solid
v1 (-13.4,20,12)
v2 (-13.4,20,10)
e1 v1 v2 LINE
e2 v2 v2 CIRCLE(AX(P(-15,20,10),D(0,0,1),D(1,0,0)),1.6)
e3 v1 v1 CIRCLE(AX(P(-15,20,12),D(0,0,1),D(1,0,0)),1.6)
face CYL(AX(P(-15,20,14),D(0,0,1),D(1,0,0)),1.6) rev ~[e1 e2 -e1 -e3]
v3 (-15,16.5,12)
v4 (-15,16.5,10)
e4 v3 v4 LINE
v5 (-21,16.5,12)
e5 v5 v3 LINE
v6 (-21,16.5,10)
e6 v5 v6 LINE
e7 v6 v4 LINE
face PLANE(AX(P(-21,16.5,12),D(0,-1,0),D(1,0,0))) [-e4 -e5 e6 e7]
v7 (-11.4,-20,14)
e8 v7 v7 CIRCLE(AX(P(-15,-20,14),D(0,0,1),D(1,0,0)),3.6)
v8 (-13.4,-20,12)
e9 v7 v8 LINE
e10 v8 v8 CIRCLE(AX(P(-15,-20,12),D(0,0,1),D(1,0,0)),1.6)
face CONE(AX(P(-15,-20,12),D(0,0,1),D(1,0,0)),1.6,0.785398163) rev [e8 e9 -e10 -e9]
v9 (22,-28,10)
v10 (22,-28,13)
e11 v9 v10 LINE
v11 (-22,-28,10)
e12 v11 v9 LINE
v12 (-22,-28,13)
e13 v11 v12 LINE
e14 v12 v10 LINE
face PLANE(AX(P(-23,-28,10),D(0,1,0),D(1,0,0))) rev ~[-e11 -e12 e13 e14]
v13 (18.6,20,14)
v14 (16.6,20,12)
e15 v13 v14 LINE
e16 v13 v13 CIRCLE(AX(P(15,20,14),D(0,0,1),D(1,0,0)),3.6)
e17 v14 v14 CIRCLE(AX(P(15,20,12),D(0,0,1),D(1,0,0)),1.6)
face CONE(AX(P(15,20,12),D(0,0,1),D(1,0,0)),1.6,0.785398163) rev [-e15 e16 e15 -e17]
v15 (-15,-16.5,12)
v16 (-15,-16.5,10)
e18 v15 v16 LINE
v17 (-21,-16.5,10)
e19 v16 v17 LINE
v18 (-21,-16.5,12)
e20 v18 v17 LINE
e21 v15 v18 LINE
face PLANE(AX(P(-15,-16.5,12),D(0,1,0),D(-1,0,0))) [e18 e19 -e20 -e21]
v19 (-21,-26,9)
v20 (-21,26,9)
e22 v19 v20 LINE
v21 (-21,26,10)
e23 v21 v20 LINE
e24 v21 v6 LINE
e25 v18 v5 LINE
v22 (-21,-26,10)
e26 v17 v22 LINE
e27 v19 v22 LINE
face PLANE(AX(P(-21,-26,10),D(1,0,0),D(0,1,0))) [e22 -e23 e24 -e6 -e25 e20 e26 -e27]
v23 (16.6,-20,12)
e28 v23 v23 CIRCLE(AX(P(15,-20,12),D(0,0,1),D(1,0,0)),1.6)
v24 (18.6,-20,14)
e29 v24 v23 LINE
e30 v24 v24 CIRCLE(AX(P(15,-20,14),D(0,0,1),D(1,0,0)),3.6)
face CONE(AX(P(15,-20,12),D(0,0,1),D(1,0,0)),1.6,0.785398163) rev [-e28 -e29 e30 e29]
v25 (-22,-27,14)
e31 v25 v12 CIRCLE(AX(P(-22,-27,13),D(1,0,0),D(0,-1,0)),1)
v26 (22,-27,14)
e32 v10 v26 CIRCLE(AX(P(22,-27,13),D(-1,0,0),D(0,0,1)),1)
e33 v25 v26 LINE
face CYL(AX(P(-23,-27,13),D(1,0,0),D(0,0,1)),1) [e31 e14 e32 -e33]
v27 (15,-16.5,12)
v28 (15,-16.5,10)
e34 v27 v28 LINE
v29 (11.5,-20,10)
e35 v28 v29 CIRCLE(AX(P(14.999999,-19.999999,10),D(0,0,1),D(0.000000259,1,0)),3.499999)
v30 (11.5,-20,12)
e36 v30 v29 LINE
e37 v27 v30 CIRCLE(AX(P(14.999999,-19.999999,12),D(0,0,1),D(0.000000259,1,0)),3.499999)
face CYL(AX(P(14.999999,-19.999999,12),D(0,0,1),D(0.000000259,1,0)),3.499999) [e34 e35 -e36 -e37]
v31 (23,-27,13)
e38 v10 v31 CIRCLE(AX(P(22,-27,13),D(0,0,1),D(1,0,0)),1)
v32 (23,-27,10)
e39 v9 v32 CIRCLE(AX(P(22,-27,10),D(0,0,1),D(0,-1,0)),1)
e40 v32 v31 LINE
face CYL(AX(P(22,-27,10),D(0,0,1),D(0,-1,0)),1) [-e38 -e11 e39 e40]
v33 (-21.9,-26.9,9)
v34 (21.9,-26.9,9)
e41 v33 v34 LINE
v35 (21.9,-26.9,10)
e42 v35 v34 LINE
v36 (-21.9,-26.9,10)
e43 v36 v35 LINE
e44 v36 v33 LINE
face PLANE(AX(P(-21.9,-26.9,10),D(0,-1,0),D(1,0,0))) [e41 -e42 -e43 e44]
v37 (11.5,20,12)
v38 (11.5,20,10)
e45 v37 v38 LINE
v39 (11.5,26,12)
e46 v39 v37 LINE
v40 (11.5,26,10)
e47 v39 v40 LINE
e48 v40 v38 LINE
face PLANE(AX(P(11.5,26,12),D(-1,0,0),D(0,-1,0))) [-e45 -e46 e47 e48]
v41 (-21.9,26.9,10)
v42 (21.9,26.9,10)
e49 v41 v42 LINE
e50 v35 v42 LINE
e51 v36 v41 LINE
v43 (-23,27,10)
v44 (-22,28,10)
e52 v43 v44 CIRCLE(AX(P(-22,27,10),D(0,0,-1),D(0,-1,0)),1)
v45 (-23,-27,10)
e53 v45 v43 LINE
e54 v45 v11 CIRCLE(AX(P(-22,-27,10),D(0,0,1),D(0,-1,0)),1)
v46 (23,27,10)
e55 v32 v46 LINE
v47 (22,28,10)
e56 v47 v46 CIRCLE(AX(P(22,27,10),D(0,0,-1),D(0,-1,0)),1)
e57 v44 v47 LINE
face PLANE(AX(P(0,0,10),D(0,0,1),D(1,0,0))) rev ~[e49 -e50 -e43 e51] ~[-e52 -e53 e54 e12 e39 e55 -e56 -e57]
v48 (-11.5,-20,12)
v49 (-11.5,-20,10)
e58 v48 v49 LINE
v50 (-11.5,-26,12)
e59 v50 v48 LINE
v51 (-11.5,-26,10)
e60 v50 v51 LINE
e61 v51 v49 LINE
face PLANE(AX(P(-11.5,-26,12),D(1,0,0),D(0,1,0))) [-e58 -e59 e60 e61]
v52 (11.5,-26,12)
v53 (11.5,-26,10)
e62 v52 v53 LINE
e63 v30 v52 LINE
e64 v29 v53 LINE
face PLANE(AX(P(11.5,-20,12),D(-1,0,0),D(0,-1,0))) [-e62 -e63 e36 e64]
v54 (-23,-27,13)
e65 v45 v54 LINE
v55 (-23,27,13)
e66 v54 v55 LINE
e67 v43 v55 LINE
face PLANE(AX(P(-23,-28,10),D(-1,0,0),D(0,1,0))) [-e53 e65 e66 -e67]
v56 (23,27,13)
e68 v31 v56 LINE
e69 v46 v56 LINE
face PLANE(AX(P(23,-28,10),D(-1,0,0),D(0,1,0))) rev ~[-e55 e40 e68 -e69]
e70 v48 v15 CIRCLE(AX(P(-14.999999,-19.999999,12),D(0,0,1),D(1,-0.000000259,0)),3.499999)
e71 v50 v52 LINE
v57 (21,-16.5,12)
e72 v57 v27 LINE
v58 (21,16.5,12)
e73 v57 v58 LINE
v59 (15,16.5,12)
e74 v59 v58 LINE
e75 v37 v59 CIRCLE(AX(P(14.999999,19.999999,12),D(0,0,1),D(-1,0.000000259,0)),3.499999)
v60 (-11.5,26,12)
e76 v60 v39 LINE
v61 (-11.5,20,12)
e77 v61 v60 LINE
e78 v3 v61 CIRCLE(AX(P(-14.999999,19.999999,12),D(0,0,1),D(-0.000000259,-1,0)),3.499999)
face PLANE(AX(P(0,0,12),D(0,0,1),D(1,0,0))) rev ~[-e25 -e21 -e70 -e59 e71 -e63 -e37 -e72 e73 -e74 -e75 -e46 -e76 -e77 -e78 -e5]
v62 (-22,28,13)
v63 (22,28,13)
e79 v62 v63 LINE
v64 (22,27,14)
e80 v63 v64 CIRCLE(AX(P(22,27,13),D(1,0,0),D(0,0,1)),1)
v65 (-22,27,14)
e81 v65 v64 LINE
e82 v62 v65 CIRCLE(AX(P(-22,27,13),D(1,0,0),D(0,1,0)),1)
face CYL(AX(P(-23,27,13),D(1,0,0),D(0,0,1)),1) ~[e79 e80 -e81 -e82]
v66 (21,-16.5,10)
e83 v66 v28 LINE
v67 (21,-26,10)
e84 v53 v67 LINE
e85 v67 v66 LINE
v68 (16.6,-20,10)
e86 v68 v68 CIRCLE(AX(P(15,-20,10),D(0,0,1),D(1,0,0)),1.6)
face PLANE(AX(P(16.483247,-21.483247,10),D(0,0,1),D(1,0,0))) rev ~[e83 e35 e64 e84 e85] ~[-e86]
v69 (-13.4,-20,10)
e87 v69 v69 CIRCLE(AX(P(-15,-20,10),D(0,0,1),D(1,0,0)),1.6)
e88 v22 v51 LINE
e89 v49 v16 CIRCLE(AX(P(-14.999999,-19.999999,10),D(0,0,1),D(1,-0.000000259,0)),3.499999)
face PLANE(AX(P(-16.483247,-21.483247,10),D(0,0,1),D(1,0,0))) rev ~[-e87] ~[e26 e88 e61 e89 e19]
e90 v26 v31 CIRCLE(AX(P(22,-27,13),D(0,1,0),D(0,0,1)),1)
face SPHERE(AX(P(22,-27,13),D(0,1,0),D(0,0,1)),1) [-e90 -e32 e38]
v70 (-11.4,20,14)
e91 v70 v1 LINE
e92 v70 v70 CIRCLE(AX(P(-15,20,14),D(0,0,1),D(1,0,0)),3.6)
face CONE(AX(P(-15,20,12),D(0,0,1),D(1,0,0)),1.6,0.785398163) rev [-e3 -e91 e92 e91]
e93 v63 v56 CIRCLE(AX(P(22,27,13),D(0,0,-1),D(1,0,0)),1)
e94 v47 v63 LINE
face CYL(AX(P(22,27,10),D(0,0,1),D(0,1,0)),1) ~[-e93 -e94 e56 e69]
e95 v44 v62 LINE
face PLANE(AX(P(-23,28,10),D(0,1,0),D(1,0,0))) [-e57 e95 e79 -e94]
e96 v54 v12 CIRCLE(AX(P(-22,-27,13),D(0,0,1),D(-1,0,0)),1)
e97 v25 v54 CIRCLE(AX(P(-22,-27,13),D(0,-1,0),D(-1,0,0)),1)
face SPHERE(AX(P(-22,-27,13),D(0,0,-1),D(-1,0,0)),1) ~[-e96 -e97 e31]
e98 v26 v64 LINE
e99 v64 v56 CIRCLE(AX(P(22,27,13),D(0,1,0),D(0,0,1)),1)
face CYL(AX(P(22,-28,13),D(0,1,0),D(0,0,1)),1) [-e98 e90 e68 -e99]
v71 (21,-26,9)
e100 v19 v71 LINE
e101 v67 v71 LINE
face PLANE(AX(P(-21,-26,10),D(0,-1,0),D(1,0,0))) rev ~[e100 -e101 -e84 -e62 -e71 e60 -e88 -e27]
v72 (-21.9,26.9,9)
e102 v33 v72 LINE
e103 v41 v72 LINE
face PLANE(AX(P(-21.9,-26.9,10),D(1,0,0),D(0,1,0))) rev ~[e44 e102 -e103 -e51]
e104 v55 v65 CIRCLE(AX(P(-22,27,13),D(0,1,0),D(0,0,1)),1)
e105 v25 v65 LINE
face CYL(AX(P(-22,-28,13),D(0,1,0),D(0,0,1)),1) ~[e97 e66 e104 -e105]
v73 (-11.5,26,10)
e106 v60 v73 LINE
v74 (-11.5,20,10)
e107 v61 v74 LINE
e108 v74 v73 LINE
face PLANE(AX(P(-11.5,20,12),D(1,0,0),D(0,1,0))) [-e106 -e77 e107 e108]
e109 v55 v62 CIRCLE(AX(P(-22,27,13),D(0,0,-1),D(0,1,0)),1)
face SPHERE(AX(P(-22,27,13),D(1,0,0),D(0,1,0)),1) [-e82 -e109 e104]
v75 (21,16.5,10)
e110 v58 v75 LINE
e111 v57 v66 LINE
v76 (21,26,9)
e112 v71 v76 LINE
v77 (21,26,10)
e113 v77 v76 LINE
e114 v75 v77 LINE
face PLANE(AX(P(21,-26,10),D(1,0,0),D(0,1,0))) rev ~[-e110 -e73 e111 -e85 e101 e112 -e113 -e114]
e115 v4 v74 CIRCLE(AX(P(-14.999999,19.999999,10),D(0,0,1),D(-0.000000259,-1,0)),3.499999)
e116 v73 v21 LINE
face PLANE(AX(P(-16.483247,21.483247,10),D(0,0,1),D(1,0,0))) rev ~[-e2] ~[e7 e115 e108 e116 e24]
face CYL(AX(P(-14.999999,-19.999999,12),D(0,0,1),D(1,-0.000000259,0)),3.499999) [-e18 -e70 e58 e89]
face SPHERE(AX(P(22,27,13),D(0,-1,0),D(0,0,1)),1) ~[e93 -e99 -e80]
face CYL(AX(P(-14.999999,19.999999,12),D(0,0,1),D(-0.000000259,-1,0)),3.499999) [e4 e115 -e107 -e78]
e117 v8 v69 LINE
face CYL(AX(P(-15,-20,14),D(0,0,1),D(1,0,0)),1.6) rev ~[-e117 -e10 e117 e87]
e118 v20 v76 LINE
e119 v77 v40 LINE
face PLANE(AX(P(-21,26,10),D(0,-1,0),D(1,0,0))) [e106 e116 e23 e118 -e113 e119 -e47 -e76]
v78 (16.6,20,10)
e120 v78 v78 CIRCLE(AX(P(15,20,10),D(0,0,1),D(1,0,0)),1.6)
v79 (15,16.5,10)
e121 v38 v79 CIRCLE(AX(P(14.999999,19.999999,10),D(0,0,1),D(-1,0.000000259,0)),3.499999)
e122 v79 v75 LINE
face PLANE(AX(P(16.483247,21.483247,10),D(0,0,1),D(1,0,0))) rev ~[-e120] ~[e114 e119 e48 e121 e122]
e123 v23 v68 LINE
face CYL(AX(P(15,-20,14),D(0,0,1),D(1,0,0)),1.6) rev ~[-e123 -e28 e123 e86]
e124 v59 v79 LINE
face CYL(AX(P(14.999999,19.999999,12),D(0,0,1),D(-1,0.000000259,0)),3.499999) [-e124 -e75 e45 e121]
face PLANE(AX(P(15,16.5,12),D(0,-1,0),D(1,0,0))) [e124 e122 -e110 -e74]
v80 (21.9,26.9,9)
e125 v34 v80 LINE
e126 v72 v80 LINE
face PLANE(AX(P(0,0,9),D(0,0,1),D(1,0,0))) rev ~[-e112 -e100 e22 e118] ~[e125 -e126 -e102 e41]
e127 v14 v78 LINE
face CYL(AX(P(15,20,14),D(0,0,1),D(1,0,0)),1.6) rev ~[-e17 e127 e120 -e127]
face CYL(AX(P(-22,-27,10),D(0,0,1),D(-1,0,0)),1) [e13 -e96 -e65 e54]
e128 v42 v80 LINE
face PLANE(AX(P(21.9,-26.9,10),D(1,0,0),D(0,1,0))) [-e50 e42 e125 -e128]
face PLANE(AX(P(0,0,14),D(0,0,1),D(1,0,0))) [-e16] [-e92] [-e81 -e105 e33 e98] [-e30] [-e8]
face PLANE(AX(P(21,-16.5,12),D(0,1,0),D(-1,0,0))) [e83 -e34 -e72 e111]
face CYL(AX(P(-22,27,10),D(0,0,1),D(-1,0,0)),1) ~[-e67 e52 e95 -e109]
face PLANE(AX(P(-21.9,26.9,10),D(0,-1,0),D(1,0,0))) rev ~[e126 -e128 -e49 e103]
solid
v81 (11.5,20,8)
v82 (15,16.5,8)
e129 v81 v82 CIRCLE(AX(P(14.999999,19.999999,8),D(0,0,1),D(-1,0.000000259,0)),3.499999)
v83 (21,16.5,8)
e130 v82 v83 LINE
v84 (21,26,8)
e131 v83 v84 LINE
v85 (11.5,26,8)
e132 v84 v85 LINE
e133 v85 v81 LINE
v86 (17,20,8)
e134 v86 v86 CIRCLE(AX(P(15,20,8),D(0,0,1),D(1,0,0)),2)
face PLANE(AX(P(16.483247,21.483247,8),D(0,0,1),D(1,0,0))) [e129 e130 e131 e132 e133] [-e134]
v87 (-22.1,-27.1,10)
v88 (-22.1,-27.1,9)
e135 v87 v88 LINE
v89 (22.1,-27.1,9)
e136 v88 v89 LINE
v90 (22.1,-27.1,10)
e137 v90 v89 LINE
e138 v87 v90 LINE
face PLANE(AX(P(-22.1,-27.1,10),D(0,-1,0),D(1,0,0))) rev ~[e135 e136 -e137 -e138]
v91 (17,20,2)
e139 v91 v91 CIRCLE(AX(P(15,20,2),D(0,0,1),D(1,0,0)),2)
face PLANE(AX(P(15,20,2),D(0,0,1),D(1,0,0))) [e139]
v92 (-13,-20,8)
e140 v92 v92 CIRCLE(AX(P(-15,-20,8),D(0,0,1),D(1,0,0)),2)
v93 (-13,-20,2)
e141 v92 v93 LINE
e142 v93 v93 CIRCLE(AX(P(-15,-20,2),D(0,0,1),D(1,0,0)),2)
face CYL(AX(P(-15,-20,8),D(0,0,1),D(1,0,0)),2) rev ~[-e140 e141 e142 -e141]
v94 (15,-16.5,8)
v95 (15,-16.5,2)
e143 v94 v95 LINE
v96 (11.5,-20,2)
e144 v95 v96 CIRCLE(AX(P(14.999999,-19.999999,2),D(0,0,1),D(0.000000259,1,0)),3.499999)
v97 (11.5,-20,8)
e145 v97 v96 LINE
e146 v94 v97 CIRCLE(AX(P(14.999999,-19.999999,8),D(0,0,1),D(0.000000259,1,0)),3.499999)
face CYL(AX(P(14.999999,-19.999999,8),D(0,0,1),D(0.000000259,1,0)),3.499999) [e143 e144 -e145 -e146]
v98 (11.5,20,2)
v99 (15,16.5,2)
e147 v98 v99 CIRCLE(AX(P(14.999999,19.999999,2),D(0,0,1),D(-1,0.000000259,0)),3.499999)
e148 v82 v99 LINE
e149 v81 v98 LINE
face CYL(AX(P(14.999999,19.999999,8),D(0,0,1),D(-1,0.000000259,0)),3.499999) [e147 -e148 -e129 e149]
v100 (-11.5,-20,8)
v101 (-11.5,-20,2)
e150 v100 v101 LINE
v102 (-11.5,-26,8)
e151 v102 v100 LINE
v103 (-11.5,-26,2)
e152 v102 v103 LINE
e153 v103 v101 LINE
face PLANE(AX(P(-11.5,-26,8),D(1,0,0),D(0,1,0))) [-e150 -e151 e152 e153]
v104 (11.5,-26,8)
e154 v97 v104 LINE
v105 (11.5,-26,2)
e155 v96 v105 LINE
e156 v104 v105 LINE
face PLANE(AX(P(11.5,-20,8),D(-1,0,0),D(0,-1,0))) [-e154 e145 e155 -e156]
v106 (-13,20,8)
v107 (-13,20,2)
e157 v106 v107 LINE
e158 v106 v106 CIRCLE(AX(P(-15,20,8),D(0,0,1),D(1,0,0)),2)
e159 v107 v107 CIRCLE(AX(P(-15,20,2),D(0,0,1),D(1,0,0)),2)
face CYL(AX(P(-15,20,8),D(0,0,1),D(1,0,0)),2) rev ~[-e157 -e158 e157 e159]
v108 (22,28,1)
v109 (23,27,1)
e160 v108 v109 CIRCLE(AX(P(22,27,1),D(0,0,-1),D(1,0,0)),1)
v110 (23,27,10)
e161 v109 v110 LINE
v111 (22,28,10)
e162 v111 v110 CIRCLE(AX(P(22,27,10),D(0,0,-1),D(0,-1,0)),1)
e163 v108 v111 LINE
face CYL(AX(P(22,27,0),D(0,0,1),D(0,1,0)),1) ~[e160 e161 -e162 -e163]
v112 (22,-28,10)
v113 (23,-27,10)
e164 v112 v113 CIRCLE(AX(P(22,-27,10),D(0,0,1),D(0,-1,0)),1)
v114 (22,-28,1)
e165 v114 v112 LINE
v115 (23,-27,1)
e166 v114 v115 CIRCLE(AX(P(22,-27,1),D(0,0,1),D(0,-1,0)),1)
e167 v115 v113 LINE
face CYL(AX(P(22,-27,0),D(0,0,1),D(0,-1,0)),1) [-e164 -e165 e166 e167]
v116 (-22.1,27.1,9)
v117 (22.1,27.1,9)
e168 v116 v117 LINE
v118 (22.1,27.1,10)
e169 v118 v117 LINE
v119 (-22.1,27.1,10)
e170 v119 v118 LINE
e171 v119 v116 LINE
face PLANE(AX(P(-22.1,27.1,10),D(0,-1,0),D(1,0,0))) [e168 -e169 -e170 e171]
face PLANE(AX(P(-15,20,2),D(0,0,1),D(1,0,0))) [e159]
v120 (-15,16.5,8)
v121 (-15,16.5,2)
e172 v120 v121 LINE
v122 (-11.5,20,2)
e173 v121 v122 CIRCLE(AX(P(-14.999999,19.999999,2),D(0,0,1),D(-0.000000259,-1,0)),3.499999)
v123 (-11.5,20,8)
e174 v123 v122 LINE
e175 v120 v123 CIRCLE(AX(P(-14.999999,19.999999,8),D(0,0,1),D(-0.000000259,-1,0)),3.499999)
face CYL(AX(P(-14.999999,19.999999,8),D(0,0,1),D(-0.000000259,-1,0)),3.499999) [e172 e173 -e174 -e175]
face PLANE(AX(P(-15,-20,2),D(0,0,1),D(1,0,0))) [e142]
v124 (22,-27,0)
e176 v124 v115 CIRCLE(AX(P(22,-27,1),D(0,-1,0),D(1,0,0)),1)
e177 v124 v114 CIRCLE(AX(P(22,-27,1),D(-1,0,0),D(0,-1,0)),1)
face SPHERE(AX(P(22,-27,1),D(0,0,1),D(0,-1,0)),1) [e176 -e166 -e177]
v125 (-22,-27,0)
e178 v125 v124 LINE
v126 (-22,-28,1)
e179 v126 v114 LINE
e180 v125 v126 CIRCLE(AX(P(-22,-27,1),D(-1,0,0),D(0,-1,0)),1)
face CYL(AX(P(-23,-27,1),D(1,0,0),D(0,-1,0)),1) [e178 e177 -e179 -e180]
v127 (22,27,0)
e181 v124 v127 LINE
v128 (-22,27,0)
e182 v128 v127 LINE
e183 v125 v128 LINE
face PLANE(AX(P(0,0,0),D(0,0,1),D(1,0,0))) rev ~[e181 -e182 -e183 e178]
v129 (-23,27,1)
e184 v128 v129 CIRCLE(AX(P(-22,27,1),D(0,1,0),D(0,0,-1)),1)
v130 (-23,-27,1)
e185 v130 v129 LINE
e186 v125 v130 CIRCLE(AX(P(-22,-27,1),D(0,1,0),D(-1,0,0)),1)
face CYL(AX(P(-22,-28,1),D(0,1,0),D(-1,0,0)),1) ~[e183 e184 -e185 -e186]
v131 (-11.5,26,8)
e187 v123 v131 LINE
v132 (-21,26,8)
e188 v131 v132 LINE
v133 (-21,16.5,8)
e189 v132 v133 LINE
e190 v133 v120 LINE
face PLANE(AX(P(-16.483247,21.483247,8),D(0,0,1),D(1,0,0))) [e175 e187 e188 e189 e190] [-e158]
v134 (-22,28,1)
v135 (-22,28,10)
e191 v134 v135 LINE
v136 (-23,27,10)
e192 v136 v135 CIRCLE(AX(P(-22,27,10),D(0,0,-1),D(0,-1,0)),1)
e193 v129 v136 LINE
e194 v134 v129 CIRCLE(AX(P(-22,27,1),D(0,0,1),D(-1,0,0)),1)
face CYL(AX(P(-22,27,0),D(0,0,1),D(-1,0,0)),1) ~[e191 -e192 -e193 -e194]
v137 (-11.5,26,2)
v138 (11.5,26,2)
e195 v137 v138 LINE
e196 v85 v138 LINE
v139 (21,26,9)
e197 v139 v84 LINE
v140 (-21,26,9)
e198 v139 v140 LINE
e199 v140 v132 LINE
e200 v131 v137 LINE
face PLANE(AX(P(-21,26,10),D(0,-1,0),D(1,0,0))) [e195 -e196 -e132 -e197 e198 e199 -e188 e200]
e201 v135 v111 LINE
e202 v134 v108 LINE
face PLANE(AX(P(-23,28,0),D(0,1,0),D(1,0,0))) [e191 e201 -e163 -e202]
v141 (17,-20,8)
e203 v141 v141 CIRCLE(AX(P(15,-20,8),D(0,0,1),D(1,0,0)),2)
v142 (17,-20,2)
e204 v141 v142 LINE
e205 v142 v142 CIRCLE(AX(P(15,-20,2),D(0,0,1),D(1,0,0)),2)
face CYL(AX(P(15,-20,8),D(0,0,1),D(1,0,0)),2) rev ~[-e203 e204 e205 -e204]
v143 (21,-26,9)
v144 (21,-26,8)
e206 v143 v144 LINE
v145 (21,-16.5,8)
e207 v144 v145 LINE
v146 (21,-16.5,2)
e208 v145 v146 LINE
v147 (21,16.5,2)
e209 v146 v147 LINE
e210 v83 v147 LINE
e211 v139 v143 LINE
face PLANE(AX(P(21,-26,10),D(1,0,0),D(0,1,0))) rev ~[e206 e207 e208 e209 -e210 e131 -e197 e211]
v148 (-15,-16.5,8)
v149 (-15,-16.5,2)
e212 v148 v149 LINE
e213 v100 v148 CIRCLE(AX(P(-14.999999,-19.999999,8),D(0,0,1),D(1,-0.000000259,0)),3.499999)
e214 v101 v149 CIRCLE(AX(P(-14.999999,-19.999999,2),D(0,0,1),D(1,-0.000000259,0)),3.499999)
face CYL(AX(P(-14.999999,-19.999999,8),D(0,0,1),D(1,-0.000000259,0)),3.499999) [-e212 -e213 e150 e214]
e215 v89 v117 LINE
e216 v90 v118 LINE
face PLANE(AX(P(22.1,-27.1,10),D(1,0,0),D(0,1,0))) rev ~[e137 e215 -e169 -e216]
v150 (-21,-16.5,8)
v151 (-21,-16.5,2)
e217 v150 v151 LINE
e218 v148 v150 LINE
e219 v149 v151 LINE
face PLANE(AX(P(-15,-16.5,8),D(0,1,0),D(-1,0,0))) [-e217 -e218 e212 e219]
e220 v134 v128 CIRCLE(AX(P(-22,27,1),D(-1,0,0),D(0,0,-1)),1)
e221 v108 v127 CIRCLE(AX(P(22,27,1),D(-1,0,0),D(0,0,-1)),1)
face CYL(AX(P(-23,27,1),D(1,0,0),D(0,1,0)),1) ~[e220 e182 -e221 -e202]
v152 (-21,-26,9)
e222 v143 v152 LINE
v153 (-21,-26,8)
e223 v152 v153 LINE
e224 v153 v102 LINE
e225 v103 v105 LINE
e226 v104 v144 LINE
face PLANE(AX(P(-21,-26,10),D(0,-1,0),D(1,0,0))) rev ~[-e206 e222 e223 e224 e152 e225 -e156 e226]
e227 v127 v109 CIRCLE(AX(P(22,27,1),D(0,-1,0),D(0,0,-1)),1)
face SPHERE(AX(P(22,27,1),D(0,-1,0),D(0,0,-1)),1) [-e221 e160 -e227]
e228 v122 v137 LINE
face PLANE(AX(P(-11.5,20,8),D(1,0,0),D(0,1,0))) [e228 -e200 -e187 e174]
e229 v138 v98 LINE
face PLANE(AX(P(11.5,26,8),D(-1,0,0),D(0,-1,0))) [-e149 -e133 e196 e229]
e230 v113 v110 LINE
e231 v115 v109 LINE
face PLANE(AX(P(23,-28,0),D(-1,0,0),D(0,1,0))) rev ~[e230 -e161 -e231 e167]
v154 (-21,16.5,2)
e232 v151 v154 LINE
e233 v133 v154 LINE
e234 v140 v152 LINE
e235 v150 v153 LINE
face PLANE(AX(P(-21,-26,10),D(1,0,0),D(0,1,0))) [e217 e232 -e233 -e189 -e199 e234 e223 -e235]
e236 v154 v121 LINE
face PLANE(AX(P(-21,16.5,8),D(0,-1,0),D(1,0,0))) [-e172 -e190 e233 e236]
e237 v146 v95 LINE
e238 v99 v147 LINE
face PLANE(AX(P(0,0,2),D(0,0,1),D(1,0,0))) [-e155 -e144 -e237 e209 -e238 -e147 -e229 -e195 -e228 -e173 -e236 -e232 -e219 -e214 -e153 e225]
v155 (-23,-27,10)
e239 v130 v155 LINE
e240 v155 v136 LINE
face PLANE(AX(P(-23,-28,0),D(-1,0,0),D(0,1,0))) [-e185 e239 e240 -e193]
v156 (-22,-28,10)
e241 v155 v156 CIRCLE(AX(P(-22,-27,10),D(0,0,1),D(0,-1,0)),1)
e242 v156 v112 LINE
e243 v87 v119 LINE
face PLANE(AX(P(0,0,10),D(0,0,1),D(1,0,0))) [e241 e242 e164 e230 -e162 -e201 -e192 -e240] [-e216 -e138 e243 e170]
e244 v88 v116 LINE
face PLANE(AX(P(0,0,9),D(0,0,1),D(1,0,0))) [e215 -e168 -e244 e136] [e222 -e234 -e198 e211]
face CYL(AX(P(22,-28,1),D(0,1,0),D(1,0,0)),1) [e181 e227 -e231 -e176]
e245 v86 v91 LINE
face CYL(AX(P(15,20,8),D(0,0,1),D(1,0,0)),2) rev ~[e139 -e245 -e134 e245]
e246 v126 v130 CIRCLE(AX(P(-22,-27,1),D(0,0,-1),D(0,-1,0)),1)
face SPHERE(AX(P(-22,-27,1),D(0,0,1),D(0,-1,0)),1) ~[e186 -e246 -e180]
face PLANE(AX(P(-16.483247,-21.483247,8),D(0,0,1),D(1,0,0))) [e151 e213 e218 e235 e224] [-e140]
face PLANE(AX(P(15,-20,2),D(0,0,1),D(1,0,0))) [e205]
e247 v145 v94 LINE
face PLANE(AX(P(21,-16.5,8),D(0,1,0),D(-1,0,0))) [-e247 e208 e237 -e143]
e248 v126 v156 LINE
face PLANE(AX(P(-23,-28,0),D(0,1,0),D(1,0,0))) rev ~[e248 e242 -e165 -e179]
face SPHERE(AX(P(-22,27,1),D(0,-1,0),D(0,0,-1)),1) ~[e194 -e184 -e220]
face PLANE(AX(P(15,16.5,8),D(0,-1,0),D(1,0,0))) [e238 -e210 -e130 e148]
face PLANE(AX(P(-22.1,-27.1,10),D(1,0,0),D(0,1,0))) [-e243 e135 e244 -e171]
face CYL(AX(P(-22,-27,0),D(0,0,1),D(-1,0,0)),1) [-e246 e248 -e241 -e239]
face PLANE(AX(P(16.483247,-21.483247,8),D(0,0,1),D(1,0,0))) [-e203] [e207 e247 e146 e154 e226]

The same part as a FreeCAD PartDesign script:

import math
import FreeCAD as App
import Part
import Sketcher
Q = App.Units.Quantity


def edges_at(feature, points):
    """Names of the edges that pass closest to the given points."""
    edges = feature.Shape.Edges
    near = lambda p: min(range(len(edges)), key=lambda i: edges[i].distToShape(Part.Vertex(*p))[0])
    return sorted({f"Edge{near(p) + 1}" for p in points})

doc = App.newDocument("Part")
params = doc.addObject("Spreadsheet::Sheet", "Params")
for row, (alias, value) in enumerate([
    ("sketch1_width", "46 mm"),
    ("sketch1_height", "56 mm"),
    ("pad1_length", "10 mm"),
    ("sketch2_width", "42 mm"),
    ("sketch2_height", "52 mm"),
    ("pocket1_length", "8 mm"),
    ("sketch3_width", "44.2 mm"),
    ("sketch3_height", "54.2 mm"),
    ("pocket2_length", "1 mm"),
    ("sketch4_radius", "3.499999 mm"),
    ("sketch4_width", "6 mm"),
    ("pad2_length", "6 mm"),
    ("sketch5_diameter", "4 mm"),
    ("pocket3_length", "6 mm"),
    ("fillet_radius", "1 mm"),
    ("sketch6_width", "46 mm"),
    ("sketch6_height", "56 mm"),
    ("pad3_length", "4 mm"),
    ("sketch7_width", "42 mm"),
    ("sketch7_height", "52 mm"),
    ("pocket4_length", "2 mm"),
    ("sketch8_width", "43.8 mm"),
    ("sketch8_height", "53.8 mm"),
    ("pad4_length", "1 mm"),
    ("sketch9_width", "42 mm"),
    ("sketch9_height", "52 mm"),
    ("pocket5_length", "1 mm"),
    ("sketch10_radius", "3.499999 mm"),
    ("sketch10_width", "6 mm"),
    ("pad5_length", "2 mm"),
    ("sketch11_diameter", "3.2 mm"),
    ("pocket6_length", "4 mm"),
    ("fillet2_radius", "1 mm"),
    ("chamfer_size", "2 mm"),
], start=1):
    params.set(f"A{row}", alias)
    params.set(f"B{row}", "=" + value)
    params.setAlias(f"B{row}", alias)

body = doc.addObject("PartDesign::Body", "Body")

# Sketch on XY plane
sketch1 = doc.addObject("Sketcher::SketchObject", "Sketch")
body.addObject(sketch1)
sketch1.AttachmentSupport = (doc.XY_Plane, [""])
sketch1.MapMode = "FlatFace"
sketch1.addGeometry(Part.LineSegment(App.Vector(-23, 28, 0), App.Vector(-23, -28, 0)), False)
sketch1.addGeometry(Part.LineSegment(App.Vector(-23, -28, 0), App.Vector(23, -28, 0)), False)
sketch1.addGeometry(Part.LineSegment(App.Vector(23, -28, 0), App.Vector(23, 28, 0)), False)
sketch1.addGeometry(Part.LineSegment(App.Vector(23, 28, 0), App.Vector(-23, 28, 0)), False)
sketch1.addConstraint(Sketcher.Constraint("Coincident", 0, 2, 1, 1))
sketch1.addConstraint(Sketcher.Constraint("Coincident", 1, 2, 2, 1))
sketch1.addConstraint(Sketcher.Constraint("Coincident", 2, 2, 3, 1))
sketch1.addConstraint(Sketcher.Constraint("Coincident", 3, 2, 0, 1))
sketch1.addConstraint(Sketcher.Constraint("Vertical", 0))
sketch1.addConstraint(Sketcher.Constraint("Horizontal", 1))
sketch1.addConstraint(Sketcher.Constraint("Vertical", 2))
sketch1.addConstraint(Sketcher.Constraint("Horizontal", 3))
sketch1.addConstraint(Sketcher.Constraint("Symmetric", 0, 2, 2, 2, -1, 1))
sketch1.addConstraint(Sketcher.Constraint("DistanceX", 1, 1, 1, 2, Q("46 mm")))
sketch1.addConstraint(Sketcher.Constraint("DistanceY", 0, 2, 0, 1, Q("56 mm")))
sketch1.setExpression("Constraints[9]", "Params.sketch1_width")
sketch1.setExpression("Constraints[10]", "Params.sketch1_height")
pad1 = doc.addObject("PartDesign::Pad", "Pad")
body.addObject(pad1)
pad1.Profile = sketch1
pad1.setExpression("Length", "Params.pad1_length")

# Sketch on XY plane
sketch2 = doc.addObject("Sketcher::SketchObject", "Sketch001")
body.addObject(sketch2)
sketch2.AttachmentSupport = (doc.XY_Plane, [""])
sketch2.MapMode = "FlatFace"
sketch2.AttachmentOffset = App.Placement(App.Vector(0, 0, 10), App.Rotation())
sketch2.addGeometry(Part.LineSegment(App.Vector(-21, 26, 0), App.Vector(-21, -26, 0)), False)
sketch2.addGeometry(Part.LineSegment(App.Vector(-21, -26, 0), App.Vector(21, -26, 0)), False)
sketch2.addGeometry(Part.LineSegment(App.Vector(21, -26, 0), App.Vector(21, 26, 0)), False)
sketch2.addGeometry(Part.LineSegment(App.Vector(21, 26, 0), App.Vector(-21, 26, 0)), False)
sketch2.addConstraint(Sketcher.Constraint("Coincident", 0, 2, 1, 1))
sketch2.addConstraint(Sketcher.Constraint("Coincident", 1, 2, 2, 1))
sketch2.addConstraint(Sketcher.Constraint("Coincident", 2, 2, 3, 1))
sketch2.addConstraint(Sketcher.Constraint("Coincident", 3, 2, 0, 1))
sketch2.addConstraint(Sketcher.Constraint("Vertical", 0))
sketch2.addConstraint(Sketcher.Constraint("Horizontal", 1))
sketch2.addConstraint(Sketcher.Constraint("Vertical", 2))
sketch2.addConstraint(Sketcher.Constraint("Horizontal", 3))
sketch2.addConstraint(Sketcher.Constraint("Symmetric", 0, 2, 2, 2, -1, 1))
sketch2.addConstraint(Sketcher.Constraint("DistanceX", 1, 1, 1, 2, Q("42 mm")))
sketch2.addConstraint(Sketcher.Constraint("DistanceY", 0, 2, 0, 1, Q("52 mm")))
sketch2.setExpression("Constraints[9]", "Params.sketch2_width")
sketch2.setExpression("Constraints[10]", "Params.sketch2_height")
pocket1 = doc.addObject("PartDesign::Pocket", "Pocket")
body.addObject(pocket1)
pocket1.Profile = sketch2
pocket1.setExpression("Length", "Params.pocket1_length")

# Sketch on XY plane
sketch3 = doc.addObject("Sketcher::SketchObject", "Sketch002")
body.addObject(sketch3)
sketch3.AttachmentSupport = (doc.XY_Plane, [""])
sketch3.MapMode = "FlatFace"
sketch3.AttachmentOffset = App.Placement(App.Vector(0, 0, 10), App.Rotation())
sketch3.addGeometry(Part.LineSegment(App.Vector(-22, 27, 0), App.Vector(-22, -27, 0)), False)
sketch3.addGeometry(Part.LineSegment(App.Vector(-22, -27, 0), App.Vector(22, -27, 0)), False)
sketch3.addGeometry(Part.LineSegment(App.Vector(22, -27, 0), App.Vector(22, 27, 0)), False)
sketch3.addGeometry(Part.LineSegment(App.Vector(22, 27, 0), App.Vector(-22, 27, 0)), False)
sketch3.addConstraint(Sketcher.Constraint("Coincident", 0, 2, 1, 1))
sketch3.addConstraint(Sketcher.Constraint("Coincident", 1, 2, 2, 1))
sketch3.addConstraint(Sketcher.Constraint("Coincident", 2, 2, 3, 1))
sketch3.addConstraint(Sketcher.Constraint("Coincident", 3, 2, 0, 1))
sketch3.addConstraint(Sketcher.Constraint("Vertical", 0))
sketch3.addConstraint(Sketcher.Constraint("Horizontal", 1))
sketch3.addConstraint(Sketcher.Constraint("Vertical", 2))
sketch3.addConstraint(Sketcher.Constraint("Horizontal", 3))
sketch3.addConstraint(Sketcher.Constraint("Symmetric", 0, 2, 2, 2, -1, 1))
sketch3.addConstraint(Sketcher.Constraint("DistanceX", 1, 1, 1, 2, Q("44.2 mm")))
sketch3.addConstraint(Sketcher.Constraint("DistanceY", 0, 2, 0, 1, Q("54.2 mm")))
sketch3.setExpression("Constraints[9]", "Params.sketch3_width")
sketch3.setExpression("Constraints[10]", "Params.sketch3_height")
pocket2 = doc.addObject("PartDesign::Pocket", "Pocket001")
body.addObject(pocket2)
pocket2.Profile = sketch3
pocket2.setExpression("Length", "Params.pocket2_length")

# Sketch on XY plane
sketch4 = doc.addObject("Sketcher::SketchObject", "Sketch003")
body.addObject(sketch4)
sketch4.AttachmentSupport = (doc.XY_Plane, [""])
sketch4.MapMode = "FlatFace"
sketch4.AttachmentOffset = App.Placement(App.Vector(0, 0, 8), App.Rotation())
sketch4.addGeometry(Part.ArcOfCircle(Part.Circle(App.Vector(-15, -20, 0), App.Vector(0, 0, 1), 3.5), math.radians(0), math.radians(90)), False)
sketch4.addGeometry(Part.LineSegment(App.Vector(-15, -16.5, 0), App.Vector(-21, -16.5, 0)), False)
sketch4.addGeometry(Part.LineSegment(App.Vector(-21, -16.5, 0), App.Vector(-21, -26, 0)), False)
sketch4.addGeometry(Part.LineSegment(App.Vector(-21, -26, 0), App.Vector(-11.5, -26, 0)), False)
sketch4.addGeometry(Part.LineSegment(App.Vector(-11.5, -26, 0), App.Vector(-11.5, -20, 0)), False)
sketch4.addGeometry(Part.ArcOfCircle(Part.Circle(App.Vector(15, -20, 0), App.Vector(0, 0, 1), 3.5), math.radians(90), math.radians(180)), False)
sketch4.addGeometry(Part.LineSegment(App.Vector(11.5, -20, 0), App.Vector(11.5, -26, 0)), False)
sketch4.addGeometry(Part.LineSegment(App.Vector(11.5, -26, 0), App.Vector(21, -26, 0)), False)
sketch4.addGeometry(Part.LineSegment(App.Vector(21, -26, 0), App.Vector(21, -16.5, 0)), False)
sketch4.addGeometry(Part.LineSegment(App.Vector(21, -16.5, 0), App.Vector(15, -16.5, 0)), False)
sketch4.addGeometry(Part.ArcOfCircle(Part.Circle(App.Vector(15, 20, 0), App.Vector(0, 0, 1), 3.5), math.radians(180), math.radians(270)), False)
sketch4.addGeometry(Part.LineSegment(App.Vector(15, 16.5, 0), App.Vector(21, 16.5, 0)), False)
sketch4.addGeometry(Part.LineSegment(App.Vector(21, 16.5, 0), App.Vector(21, 26, 0)), False)
sketch4.addGeometry(Part.LineSegment(App.Vector(21, 26, 0), App.Vector(11.5, 26, 0)), False)
sketch4.addGeometry(Part.LineSegment(App.Vector(11.5, 26, 0), App.Vector(11.5, 20, 0)), False)
sketch4.addGeometry(Part.ArcOfCircle(Part.Circle(App.Vector(-15, 20, 0), App.Vector(0, 0, 1), 3.5), math.radians(-90), math.radians(0)), False)
sketch4.addGeometry(Part.LineSegment(App.Vector(-11.5, 20, 0), App.Vector(-11.5, 26, 0)), False)
sketch4.addGeometry(Part.LineSegment(App.Vector(-11.5, 26, 0), App.Vector(-21, 26, 0)), False)
sketch4.addGeometry(Part.LineSegment(App.Vector(-21, 26, 0), App.Vector(-21, 16.5, 0)), False)
sketch4.addGeometry(Part.LineSegment(App.Vector(-21, 16.5, 0), App.Vector(-15, 16.5, 0)), False)
sketch4.addConstraint(Sketcher.Constraint("Tangent", 0, 2, 1, 1))
sketch4.addConstraint(Sketcher.Constraint("Coincident", 1, 2, 2, 1))
sketch4.addConstraint(Sketcher.Constraint("Coincident", 2, 2, 3, 1))
sketch4.addConstraint(Sketcher.Constraint("Coincident", 3, 2, 4, 1))
sketch4.addConstraint(Sketcher.Constraint("Tangent", 4, 2, 0, 1))
sketch4.addConstraint(Sketcher.Constraint("Tangent", 5, 2, 6, 1))
sketch4.addConstraint(Sketcher.Constraint("Coincident", 6, 2, 7, 1))
sketch4.addConstraint(Sketcher.Constraint("Coincident", 7, 2, 8, 1))
sketch4.addConstraint(Sketcher.Constraint("Coincident", 8, 2, 9, 1))
sketch4.addConstraint(Sketcher.Constraint("Tangent", 9, 2, 5, 1))
sketch4.addConstraint(Sketcher.Constraint("Tangent", 10, 2, 11, 1))
sketch4.addConstraint(Sketcher.Constraint("Coincident", 11, 2, 12, 1))
sketch4.addConstraint(Sketcher.Constraint("Coincident", 12, 2, 13, 1))
sketch4.addConstraint(Sketcher.Constraint("Coincident", 13, 2, 14, 1))
sketch4.addConstraint(Sketcher.Constraint("Tangent", 14, 2, 10, 1))
sketch4.addConstraint(Sketcher.Constraint("Tangent", 15, 2, 16, 1))
sketch4.addConstraint(Sketcher.Constraint("Coincident", 16, 2, 17, 1))
sketch4.addConstraint(Sketcher.Constraint("Coincident", 17, 2, 18, 1))
sketch4.addConstraint(Sketcher.Constraint("Coincident", 18, 2, 19, 1))
sketch4.addConstraint(Sketcher.Constraint("Tangent", 19, 2, 15, 1))
sketch4.addConstraint(Sketcher.Constraint("Horizontal", 1))
sketch4.addConstraint(Sketcher.Constraint("Vertical", 2))
sketch4.addConstraint(Sketcher.Constraint("Horizontal", 3))
sketch4.addConstraint(Sketcher.Constraint("Vertical", 4))
sketch4.addConstraint(Sketcher.Constraint("Vertical", 6))
sketch4.addConstraint(Sketcher.Constraint("Horizontal", 7))
sketch4.addConstraint(Sketcher.Constraint("Vertical", 8))
sketch4.addConstraint(Sketcher.Constraint("Horizontal", 9))
sketch4.addConstraint(Sketcher.Constraint("Horizontal", 11))
sketch4.addConstraint(Sketcher.Constraint("Vertical", 12))
sketch4.addConstraint(Sketcher.Constraint("Horizontal", 13))
sketch4.addConstraint(Sketcher.Constraint("Vertical", 14))
sketch4.addConstraint(Sketcher.Constraint("Vertical", 16))
sketch4.addConstraint(Sketcher.Constraint("Horizontal", 17))
sketch4.addConstraint(Sketcher.Constraint("Vertical", 18))
sketch4.addConstraint(Sketcher.Constraint("Horizontal", 19))
sketch4.addConstraint(Sketcher.Constraint("Equal", 0, 5))
sketch4.addConstraint(Sketcher.Constraint("Equal", 5, 10))
sketch4.addConstraint(Sketcher.Constraint("Equal", 10, 15))
sketch4.addConstraint(Sketcher.Constraint("Symmetric", 0, 3, 10, 3, -1, 1))
sketch4.addConstraint(Sketcher.Constraint("Symmetric", 5, 3, 15, 3, -1, 1))
sketch4.addConstraint(Sketcher.Constraint("Symmetric", 2, 2, 12, 2, -1, 1))
sketch4.addConstraint(Sketcher.Constraint("Symmetric", 7, 2, 17, 2, -1, 1))
sketch4.addConstraint(Sketcher.Constraint("Symmetric", 0, 3, 5, 3, -2))
sketch4.addConstraint(Sketcher.Constraint("Symmetric", 2, 2, 7, 2, -2))
sketch4.addConstraint(Sketcher.Constraint("Equal", 17, 2))
sketch4.addConstraint(Sketcher.Constraint("Radius", 0, Q("3.499999 mm")))
sketch4.addConstraint(Sketcher.Constraint("DistanceX", 1, 2, 1, 1, Q("6 mm")))
sketch4.addConstraint(Sketcher.Constraint("DistanceX", 0, 3, -1, 1, Q("14.999999 mm")))
sketch4.addConstraint(Sketcher.Constraint("DistanceY", 0, 3, -1, 1, Q("19.999999 mm")))
sketch4.setExpression("Constraints[46]", "Params.sketch4_radius")
sketch4.setExpression("Constraints[47]", "Params.sketch4_width")
pad2 = doc.addObject("PartDesign::Pad", "Pad001")
body.addObject(pad2)
pad2.Profile = sketch4
pad2.setExpression("Length", "Params.pad2_length")
pad2.Reversed = True

# Sketch on XY plane
sketch5 = doc.addObject("Sketcher::SketchObject", "Sketch004")
body.addObject(sketch5)
sketch5.AttachmentSupport = (doc.XY_Plane, [""])
sketch5.MapMode = "FlatFace"
sketch5.AttachmentOffset = App.Placement(App.Vector(0, 0, 8), App.Rotation())
sketch5.addGeometry(Part.Circle(App.Vector(15, 20, 0), App.Vector(0, 0, 1), 2), False)
sketch5.addGeometry(Part.Circle(App.Vector(-15, 20, 0), App.Vector(0, 0, 1), 2), False)
sketch5.addGeometry(Part.Circle(App.Vector(-15, -20, 0), App.Vector(0, 0, 1), 2), False)
sketch5.addGeometry(Part.Circle(App.Vector(15, -20, 0), App.Vector(0, 0, 1), 2), False)
sketch5.addConstraint(Sketcher.Constraint("Equal", 0, 1))
sketch5.addConstraint(Sketcher.Constraint("Equal", 1, 2))
sketch5.addConstraint(Sketcher.Constraint("Equal", 2, 3))
sketch5.addConstraint(Sketcher.Constraint("Symmetric", 0, 3, 2, 3, -1, 1))
sketch5.addConstraint(Sketcher.Constraint("Symmetric", 1, 3, 3, 3, -1, 1))
sketch5.addConstraint(Sketcher.Constraint("Symmetric", 0, 3, 1, 3, -2))
sketch5.addConstraint(Sketcher.Constraint("Diameter", 0, Q("4 mm")))
sketch5.addConstraint(Sketcher.Constraint("DistanceX", -1, 1, 0, 3, Q("15 mm")))
sketch5.addConstraint(Sketcher.Constraint("DistanceY", -1, 1, 0, 3, Q("20 mm")))
sketch5.setExpression("Constraints[6]", "Params.sketch5_diameter")
pocket3 = doc.addObject("PartDesign::Pocket", "Pocket002")
body.addObject(pocket3)
pocket3.Profile = sketch5
pocket3.setExpression("Length", "Params.pocket3_length")
doc.recompute()

fillet = doc.addObject("PartDesign::Fillet", "Fillet")
body.addObject(fillet)
fillet.Base = (pocket3, edges_at(pocket3, [
    (23, -28, 5),
    (-23, -28, 5),
    (0, -28, 0),
    (-23, 0, 0),
    (23, 0, 0),
    (0, 28, 0),
    (23, 28, 5),
    (-23, 28, 5),
]))
fillet.setExpression("Radius", "Params.fillet_radius")
body2 = doc.addObject("PartDesign::Body", "Body001")

# Sketch on XY plane
sketch6 = doc.addObject("Sketcher::SketchObject", "Sketch005")
body2.addObject(sketch6)
sketch6.AttachmentSupport = (doc.getObject("XY_Plane001"), [""])
sketch6.MapMode = "FlatFace"
sketch6.AttachmentOffset = App.Placement(App.Vector(0, 0, 10), App.Rotation())
sketch6.addGeometry(Part.LineSegment(App.Vector(-23, 28, 0), App.Vector(-23, -28, 0)), False)
sketch6.addGeometry(Part.LineSegment(App.Vector(-23, -28, 0), App.Vector(23, -28, 0)), False)
sketch6.addGeometry(Part.LineSegment(App.Vector(23, -28, 0), App.Vector(23, 28, 0)), False)
sketch6.addGeometry(Part.LineSegment(App.Vector(23, 28, 0), App.Vector(-23, 28, 0)), False)
sketch6.addConstraint(Sketcher.Constraint("Coincident", 0, 2, 1, 1))
sketch6.addConstraint(Sketcher.Constraint("Coincident", 1, 2, 2, 1))
sketch6.addConstraint(Sketcher.Constraint("Coincident", 2, 2, 3, 1))
sketch6.addConstraint(Sketcher.Constraint("Coincident", 3, 2, 0, 1))
sketch6.addConstraint(Sketcher.Constraint("Vertical", 0))
sketch6.addConstraint(Sketcher.Constraint("Horizontal", 1))
sketch6.addConstraint(Sketcher.Constraint("Vertical", 2))
sketch6.addConstraint(Sketcher.Constraint("Horizontal", 3))
sketch6.addConstraint(Sketcher.Constraint("Symmetric", 0, 2, 2, 2, -1, 1))
sketch6.addConstraint(Sketcher.Constraint("DistanceX", 1, 1, 1, 2, Q("46 mm")))
sketch6.addConstraint(Sketcher.Constraint("DistanceY", 0, 2, 0, 1, Q("56 mm")))
sketch6.setExpression("Constraints[9]", "Params.sketch6_width")
sketch6.setExpression("Constraints[10]", "Params.sketch6_height")
pad3 = doc.addObject("PartDesign::Pad", "Pad002")
body2.addObject(pad3)
pad3.Profile = sketch6
pad3.setExpression("Length", "Params.pad3_length")

# Sketch on XY plane
sketch7 = doc.addObject("Sketcher::SketchObject", "Sketch006")
body2.addObject(sketch7)
sketch7.AttachmentSupport = (doc.getObject("XY_Plane001"), [""])
sketch7.MapMode = "FlatFace"
sketch7.AttachmentOffset = App.Placement(App.Vector(0, 0, 10), App.Rotation())
sketch7.addGeometry(Part.LineSegment(App.Vector(-21, 26, 0), App.Vector(-21, -26, 0)), False)
sketch7.addGeometry(Part.LineSegment(App.Vector(-21, -26, 0), App.Vector(21, -26, 0)), False)
sketch7.addGeometry(Part.LineSegment(App.Vector(21, -26, 0), App.Vector(21, 26, 0)), False)
sketch7.addGeometry(Part.LineSegment(App.Vector(21, 26, 0), App.Vector(-21, 26, 0)), False)
sketch7.addConstraint(Sketcher.Constraint("Coincident", 0, 2, 1, 1))
sketch7.addConstraint(Sketcher.Constraint("Coincident", 1, 2, 2, 1))
sketch7.addConstraint(Sketcher.Constraint("Coincident", 2, 2, 3, 1))
sketch7.addConstraint(Sketcher.Constraint("Coincident", 3, 2, 0, 1))
sketch7.addConstraint(Sketcher.Constraint("Vertical", 0))
sketch7.addConstraint(Sketcher.Constraint("Horizontal", 1))
sketch7.addConstraint(Sketcher.Constraint("Vertical", 2))
sketch7.addConstraint(Sketcher.Constraint("Horizontal", 3))
sketch7.addConstraint(Sketcher.Constraint("Symmetric", 0, 2, 2, 2, -1, 1))
sketch7.addConstraint(Sketcher.Constraint("DistanceX", 1, 1, 1, 2, Q("42 mm")))
sketch7.addConstraint(Sketcher.Constraint("DistanceY", 0, 2, 0, 1, Q("52 mm")))
sketch7.setExpression("Constraints[9]", "Params.sketch7_width")
sketch7.setExpression("Constraints[10]", "Params.sketch7_height")
pocket4 = doc.addObject("PartDesign::Pocket", "Pocket003")
body2.addObject(pocket4)
pocket4.Profile = sketch7
pocket4.setExpression("Length", "Params.pocket4_length")
pocket4.Reversed = True

# Sketch on XY plane
sketch8 = doc.addObject("Sketcher::SketchObject", "Sketch007")
body2.addObject(sketch8)
sketch8.AttachmentSupport = (doc.getObject("XY_Plane001"), [""])
sketch8.MapMode = "FlatFace"
sketch8.AttachmentOffset = App.Placement(App.Vector(0, 0, 10), App.Rotation())
sketch8.addGeometry(Part.LineSegment(App.Vector(-22, 27, 0), App.Vector(-22, -27, 0)), False)
sketch8.addGeometry(Part.LineSegment(App.Vector(-22, -27, 0), App.Vector(22, -27, 0)), False)
sketch8.addGeometry(Part.LineSegment(App.Vector(22, -27, 0), App.Vector(22, 27, 0)), False)
sketch8.addGeometry(Part.LineSegment(App.Vector(22, 27, 0), App.Vector(-22, 27, 0)), False)
sketch8.addConstraint(Sketcher.Constraint("Coincident", 0, 2, 1, 1))
sketch8.addConstraint(Sketcher.Constraint("Coincident", 1, 2, 2, 1))
sketch8.addConstraint(Sketcher.Constraint("Coincident", 2, 2, 3, 1))
sketch8.addConstraint(Sketcher.Constraint("Coincident", 3, 2, 0, 1))
sketch8.addConstraint(Sketcher.Constraint("Vertical", 0))
sketch8.addConstraint(Sketcher.Constraint("Horizontal", 1))
sketch8.addConstraint(Sketcher.Constraint("Vertical", 2))
sketch8.addConstraint(Sketcher.Constraint("Horizontal", 3))
sketch8.addConstraint(Sketcher.Constraint("Symmetric", 0, 2, 2, 2, -1, 1))
sketch8.addConstraint(Sketcher.Constraint("DistanceX", 1, 1, 1, 2, Q("43.8 mm")))
sketch8.addConstraint(Sketcher.Constraint("DistanceY", 0, 2, 0, 1, Q("53.8 mm")))
sketch8.setExpression("Constraints[9]", "Params.sketch8_width")
sketch8.setExpression("Constraints[10]", "Params.sketch8_height")
pad4 = doc.addObject("PartDesign::Pad", "Pad003")
body2.addObject(pad4)
pad4.Profile = sketch8
pad4.setExpression("Length", "Params.pad4_length")
pad4.Reversed = True

# Sketch on XY plane
sketch9 = doc.addObject("Sketcher::SketchObject", "Sketch008")
body2.addObject(sketch9)
sketch9.AttachmentSupport = (doc.getObject("XY_Plane001"), [""])
sketch9.MapMode = "FlatFace"
sketch9.AttachmentOffset = App.Placement(App.Vector(0, 0, 10), App.Rotation())
sketch9.addGeometry(Part.LineSegment(App.Vector(-21, 26, 0), App.Vector(-21, -26, 0)), False)
sketch9.addGeometry(Part.LineSegment(App.Vector(-21, -26, 0), App.Vector(21, -26, 0)), False)
sketch9.addGeometry(Part.LineSegment(App.Vector(21, -26, 0), App.Vector(21, 26, 0)), False)
sketch9.addGeometry(Part.LineSegment(App.Vector(21, 26, 0), App.Vector(-21, 26, 0)), False)
sketch9.addConstraint(Sketcher.Constraint("Coincident", 0, 2, 1, 1))
sketch9.addConstraint(Sketcher.Constraint("Coincident", 1, 2, 2, 1))
sketch9.addConstraint(Sketcher.Constraint("Coincident", 2, 2, 3, 1))
sketch9.addConstraint(Sketcher.Constraint("Coincident", 3, 2, 0, 1))
sketch9.addConstraint(Sketcher.Constraint("Vertical", 0))
sketch9.addConstraint(Sketcher.Constraint("Horizontal", 1))
sketch9.addConstraint(Sketcher.Constraint("Vertical", 2))
sketch9.addConstraint(Sketcher.Constraint("Horizontal", 3))
sketch9.addConstraint(Sketcher.Constraint("Symmetric", 0, 2, 2, 2, -1, 1))
sketch9.addConstraint(Sketcher.Constraint("DistanceX", 1, 1, 1, 2, Q("42 mm")))
sketch9.addConstraint(Sketcher.Constraint("DistanceY", 0, 2, 0, 1, Q("52 mm")))
sketch9.setExpression("Constraints[9]", "Params.sketch9_width")
sketch9.setExpression("Constraints[10]", "Params.sketch9_height")
pocket5 = doc.addObject("PartDesign::Pocket", "Pocket004")
body2.addObject(pocket5)
pocket5.Profile = sketch9
pocket5.setExpression("Length", "Params.pocket5_length")

# Sketch on XY plane
sketch10 = doc.addObject("Sketcher::SketchObject", "Sketch009")
body2.addObject(sketch10)
sketch10.AttachmentSupport = (doc.getObject("XY_Plane001"), [""])
sketch10.MapMode = "FlatFace"
sketch10.AttachmentOffset = App.Placement(App.Vector(0, 0, 12), App.Rotation())
sketch10.addGeometry(Part.ArcOfCircle(Part.Circle(App.Vector(-15, 20, 0), App.Vector(0, 0, 1), 3.5), math.radians(-90), math.radians(0)), False)
sketch10.addGeometry(Part.LineSegment(App.Vector(-11.5, 20, 0), App.Vector(-11.5, 26, 0)), False)
sketch10.addGeometry(Part.LineSegment(App.Vector(-11.5, 26, 0), App.Vector(-21, 26, 0)), False)
sketch10.addGeometry(Part.LineSegment(App.Vector(-21, 26, 0), App.Vector(-21, 16.5, 0)), False)
sketch10.addGeometry(Part.LineSegment(App.Vector(-21, 16.5, 0), App.Vector(-15, 16.5, 0)), False)
sketch10.addGeometry(Part.ArcOfCircle(Part.Circle(App.Vector(-15, -20, 0), App.Vector(0, 0, 1), 3.5), math.radians(0), math.radians(90)), False)
sketch10.addGeometry(Part.LineSegment(App.Vector(-15, -16.5, 0), App.Vector(-21, -16.5, 0)), False)
sketch10.addGeometry(Part.LineSegment(App.Vector(-21, -16.5, 0), App.Vector(-21, -26, 0)), False)
sketch10.addGeometry(Part.LineSegment(App.Vector(-21, -26, 0), App.Vector(-11.5, -26, 0)), False)
sketch10.addGeometry(Part.LineSegment(App.Vector(-11.5, -26, 0), App.Vector(-11.5, -20, 0)), False)
sketch10.addGeometry(Part.ArcOfCircle(Part.Circle(App.Vector(15, -20, 0), App.Vector(0, 0, 1), 3.5), math.radians(90), math.radians(180)), False)
sketch10.addGeometry(Part.LineSegment(App.Vector(11.5, -20, 0), App.Vector(11.5, -26, 0)), False)
sketch10.addGeometry(Part.LineSegment(App.Vector(11.5, -26, 0), App.Vector(21, -26, 0)), False)
sketch10.addGeometry(Part.LineSegment(App.Vector(21, -26, 0), App.Vector(21, -16.5, 0)), False)
sketch10.addGeometry(Part.LineSegment(App.Vector(21, -16.5, 0), App.Vector(15, -16.5, 0)), False)
sketch10.addGeometry(Part.ArcOfCircle(Part.Circle(App.Vector(15, 20, 0), App.Vector(0, 0, 1), 3.5), math.radians(180), math.radians(270)), False)
sketch10.addGeometry(Part.LineSegment(App.Vector(15, 16.5, 0), App.Vector(21, 16.5, 0)), False)
sketch10.addGeometry(Part.LineSegment(App.Vector(21, 16.5, 0), App.Vector(21, 26, 0)), False)
sketch10.addGeometry(Part.LineSegment(App.Vector(21, 26, 0), App.Vector(11.5, 26, 0)), False)
sketch10.addGeometry(Part.LineSegment(App.Vector(11.5, 26, 0), App.Vector(11.5, 20, 0)), False)
sketch10.addConstraint(Sketcher.Constraint("Tangent", 0, 2, 1, 1))
sketch10.addConstraint(Sketcher.Constraint("Coincident", 1, 2, 2, 1))
sketch10.addConstraint(Sketcher.Constraint("Coincident", 2, 2, 3, 1))
sketch10.addConstraint(Sketcher.Constraint("Coincident", 3, 2, 4, 1))
sketch10.addConstraint(Sketcher.Constraint("Tangent", 4, 2, 0, 1))
sketch10.addConstraint(Sketcher.Constraint("Tangent", 5, 2, 6, 1))
sketch10.addConstraint(Sketcher.Constraint("Coincident", 6, 2, 7, 1))
sketch10.addConstraint(Sketcher.Constraint("Coincident", 7, 2, 8, 1))
sketch10.addConstraint(Sketcher.Constraint("Coincident", 8, 2, 9, 1))
sketch10.addConstraint(Sketcher.Constraint("Tangent", 9, 2, 5, 1))
sketch10.addConstraint(Sketcher.Constraint("Tangent", 10, 2, 11, 1))
sketch10.addConstraint(Sketcher.Constraint("Coincident", 11, 2, 12, 1))
sketch10.addConstraint(Sketcher.Constraint("Coincident", 12, 2, 13, 1))
sketch10.addConstraint(Sketcher.Constraint("Coincident", 13, 2, 14, 1))
sketch10.addConstraint(Sketcher.Constraint("Tangent", 14, 2, 10, 1))
sketch10.addConstraint(Sketcher.Constraint("Tangent", 15, 2, 16, 1))
sketch10.addConstraint(Sketcher.Constraint("Coincident", 16, 2, 17, 1))
sketch10.addConstraint(Sketcher.Constraint("Coincident", 17, 2, 18, 1))
sketch10.addConstraint(Sketcher.Constraint("Coincident", 18, 2, 19, 1))
sketch10.addConstraint(Sketcher.Constraint("Tangent", 19, 2, 15, 1))
sketch10.addConstraint(Sketcher.Constraint("Vertical", 1))
sketch10.addConstraint(Sketcher.Constraint("Horizontal", 2))
sketch10.addConstraint(Sketcher.Constraint("Vertical", 3))
sketch10.addConstraint(Sketcher.Constraint("Horizontal", 4))
sketch10.addConstraint(Sketcher.Constraint("Horizontal", 6))
sketch10.addConstraint(Sketcher.Constraint("Vertical", 7))
sketch10.addConstraint(Sketcher.Constraint("Horizontal", 8))
sketch10.addConstraint(Sketcher.Constraint("Vertical", 9))
sketch10.addConstraint(Sketcher.Constraint("Vertical", 11))
sketch10.addConstraint(Sketcher.Constraint("Horizontal", 12))
sketch10.addConstraint(Sketcher.Constraint("Vertical", 13))
sketch10.addConstraint(Sketcher.Constraint("Horizontal", 14))
sketch10.addConstraint(Sketcher.Constraint("Horizontal", 16))
sketch10.addConstraint(Sketcher.Constraint("Vertical", 17))
sketch10.addConstraint(Sketcher.Constraint("Horizontal", 18))
sketch10.addConstraint(Sketcher.Constraint("Vertical", 19))
sketch10.addConstraint(Sketcher.Constraint("Equal", 0, 5))
sketch10.addConstraint(Sketcher.Constraint("Equal", 5, 10))
sketch10.addConstraint(Sketcher.Constraint("Equal", 10, 15))
sketch10.addConstraint(Sketcher.Constraint("Symmetric", 0, 3, 10, 3, -1, 1))
sketch10.addConstraint(Sketcher.Constraint("Symmetric", 5, 3, 15, 3, -1, 1))
sketch10.addConstraint(Sketcher.Constraint("Symmetric", 2, 2, 12, 2, -1, 1))
sketch10.addConstraint(Sketcher.Constraint("Symmetric", 7, 2, 17, 2, -1, 1))
sketch10.addConstraint(Sketcher.Constraint("Symmetric", 5, 3, 10, 3, -2))
sketch10.addConstraint(Sketcher.Constraint("Symmetric", 7, 2, 12, 2, -2))
sketch10.addConstraint(Sketcher.Constraint("Equal", 16, 1))
sketch10.addConstraint(Sketcher.Constraint("Radius", 0, Q("3.499999 mm")))
sketch10.addConstraint(Sketcher.Constraint("DistanceX", 4, 1, 4, 2, Q("6 mm")))
sketch10.addConstraint(Sketcher.Constraint("DistanceX", 0, 3, -1, 1, Q("14.999999 mm")))
sketch10.addConstraint(Sketcher.Constraint("DistanceY", -1, 1, 0, 3, Q("19.999999 mm")))
sketch10.setExpression("Constraints[46]", "Params.sketch10_radius")
sketch10.setExpression("Constraints[47]", "Params.sketch10_width")
pad5 = doc.addObject("PartDesign::Pad", "Pad004")
body2.addObject(pad5)
pad5.Profile = sketch10
pad5.setExpression("Length", "Params.pad5_length")
pad5.Reversed = True

# Sketch on XY plane
sketch11 = doc.addObject("Sketcher::SketchObject", "Sketch010")
body2.addObject(sketch11)
sketch11.AttachmentSupport = (doc.getObject("XY_Plane001"), [""])
sketch11.MapMode = "FlatFace"
sketch11.AttachmentOffset = App.Placement(App.Vector(0, 0, 14), App.Rotation())
sketch11.addGeometry(Part.Circle(App.Vector(-15, 20, 0), App.Vector(0, 0, 1), 1.6), False)
sketch11.addGeometry(Part.Circle(App.Vector(15, 20, 0), App.Vector(0, 0, 1), 1.6), False)
sketch11.addGeometry(Part.Circle(App.Vector(15, -20, 0), App.Vector(0, 0, 1), 1.6), False)
sketch11.addGeometry(Part.Circle(App.Vector(-15, -20, 0), App.Vector(0, 0, 1), 1.6), False)
sketch11.addConstraint(Sketcher.Constraint("Equal", 0, 1))
sketch11.addConstraint(Sketcher.Constraint("Equal", 1, 2))
sketch11.addConstraint(Sketcher.Constraint("Equal", 2, 3))
sketch11.addConstraint(Sketcher.Constraint("Symmetric", 0, 3, 2, 3, -1, 1))
sketch11.addConstraint(Sketcher.Constraint("Symmetric", 1, 3, 3, 3, -1, 1))
sketch11.addConstraint(Sketcher.Constraint("Symmetric", 0, 3, 1, 3, -2))
sketch11.addConstraint(Sketcher.Constraint("Diameter", 0, Q("3.2 mm")))
sketch11.addConstraint(Sketcher.Constraint("DistanceX", 0, 3, -1, 1, Q("15 mm")))
sketch11.addConstraint(Sketcher.Constraint("DistanceY", -1, 1, 0, 3, Q("20 mm")))
sketch11.setExpression("Constraints[6]", "Params.sketch11_diameter")
pocket6 = doc.addObject("PartDesign::Pocket", "Pocket005")
body2.addObject(pocket6)
pocket6.Profile = sketch11
pocket6.setExpression("Length", "Params.pocket6_length")
doc.recompute()

fillet2 = doc.addObject("PartDesign::Fillet", "Fillet001")
body2.addObject(fillet2)
fillet2.Base = (pocket6, edges_at(pocket6, [
    (23, 0, 14),
    (0, 28, 14),
    (23, 28, 12),
    (-23, 28, 12),
    (-23, -28, 12),
    (-23, 0, 14),
    (0, -28, 14),
    (23, -28, 12),
]))
fillet2.setExpression("Radius", "Params.fillet2_radius")
doc.recompute()

chamfer = doc.addObject("PartDesign::Chamfer", "Chamfer")
body2.addObject(chamfer)
chamfer.Base = (fillet2, edges_at(fillet2, [
    (-16.6, 20, 14),
    (13.4, 20, 14),
    (13.4, -20, 14),
    (-16.6, -20, 14),
]))
chamfer.setExpression("Size", "Params.chamfer_size")

doc.recompute()
